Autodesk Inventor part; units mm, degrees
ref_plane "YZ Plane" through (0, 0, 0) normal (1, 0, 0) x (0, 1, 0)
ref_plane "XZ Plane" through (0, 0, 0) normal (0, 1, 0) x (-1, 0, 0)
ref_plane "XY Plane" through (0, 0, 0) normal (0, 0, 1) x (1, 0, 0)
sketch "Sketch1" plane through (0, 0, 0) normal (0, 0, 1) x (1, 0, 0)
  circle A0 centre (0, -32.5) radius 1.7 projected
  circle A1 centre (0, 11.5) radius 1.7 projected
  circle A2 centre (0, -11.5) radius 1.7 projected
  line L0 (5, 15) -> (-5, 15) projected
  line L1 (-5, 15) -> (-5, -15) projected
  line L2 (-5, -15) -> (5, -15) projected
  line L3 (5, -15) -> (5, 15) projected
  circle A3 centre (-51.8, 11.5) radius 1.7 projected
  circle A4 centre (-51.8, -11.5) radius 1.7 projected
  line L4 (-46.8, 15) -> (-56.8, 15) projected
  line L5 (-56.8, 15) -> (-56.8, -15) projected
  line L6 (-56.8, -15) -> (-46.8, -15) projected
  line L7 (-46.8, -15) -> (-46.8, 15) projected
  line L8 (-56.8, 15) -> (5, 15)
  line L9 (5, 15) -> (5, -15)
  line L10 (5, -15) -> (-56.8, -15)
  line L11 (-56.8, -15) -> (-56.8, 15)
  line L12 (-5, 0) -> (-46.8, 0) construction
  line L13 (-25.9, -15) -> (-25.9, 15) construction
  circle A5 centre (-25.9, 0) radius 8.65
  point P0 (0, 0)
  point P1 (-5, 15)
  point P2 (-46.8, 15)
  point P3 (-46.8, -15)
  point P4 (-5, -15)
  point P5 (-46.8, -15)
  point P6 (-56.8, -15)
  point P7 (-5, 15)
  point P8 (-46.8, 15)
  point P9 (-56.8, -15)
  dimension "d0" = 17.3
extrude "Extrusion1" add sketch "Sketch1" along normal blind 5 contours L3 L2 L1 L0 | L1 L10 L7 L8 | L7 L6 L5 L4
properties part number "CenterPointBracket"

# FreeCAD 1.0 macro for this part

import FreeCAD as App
import Part
import Sketcher

V = App.Vector


def add_polygon(sketch, points):
    """Adds a closed chain of lines whose ends are joined by coincident constraints."""
    first, n = sketch.GeometryCount, len(points)
    for a, b in zip(points, points[1:] + points[:1]):
        sketch.addGeometry(Part.LineSegment(App.Vector(*a, 0), App.Vector(*b, 0)), False)
    for i in range(n):
        sketch.addConstraint(Sketcher.Constraint("Coincident", first + i, 2, first + (i + 1) % n, 1))

doc = App.newDocument("Part")
body = doc.addObject("PartDesign::Body", "Body")

sketch1 = body.newObject("Sketcher::SketchObject", "Sketch")
sketch1.AttachmentSupport = (doc.getObject("XY_Plane"), [""])
sketch1.MapMode = "FlatFace"
add_polygon(sketch1, [(5, -15), (5, 15), (-56.8, 15), (-56.8, -15)])
sketch1.addGeometry(Part.Circle(V(0, -11.5, 0), V(0, 0, 1), 1.7), False)
sketch1.addGeometry(Part.Circle(V(0, 11.5, 0), V(0, 0, 1), 1.7), False)
sketch1.addGeometry(Part.Circle(V(-25.9, 0, 0), V(0, 0, 1), 8.7), False)
sketch1.addGeometry(Part.Circle(V(-51.8, 11.5, 0), V(0, 0, 1), 1.7), False)
sketch1.addGeometry(Part.Circle(V(-51.8, -11.5, 0), V(0, 0, 1), 1.7), False)
sketch1.addConstraint([
    Sketcher.Constraint("Vertical", 0),
    Sketcher.Constraint("Horizontal", 1),
    Sketcher.Constraint("Vertical", 2),
    Sketcher.Constraint("Horizontal", 3),
    Sketcher.Constraint("Equal", 4, 5),
    Sketcher.Constraint("Equal", 5, 7),
    Sketcher.Constraint("Equal", 7, 8),
    Sketcher.Constraint("Symmetric", 4, 3, 5, 3, -1, 1),
    Sketcher.Constraint("Symmetric", 7, 3, 8, 3, -1),
    Sketcher.Constraint("PointOnObject", 4, 3, -2),
    Sketcher.Constraint("PointOnObject", 6, 3, -1),
    Sketcher.Constraint("Horizontal", 5, 3, 7, 3),
    Sketcher.Constraint("Diameter", 6, 17.3),
    Sketcher.Constraint("Diameter", 4, 3.4),
    Sketcher.Constraint("DistanceY", 0, 1, 0, 2, 30.0),
    Sketcher.Constraint("DistanceX", 1, 2, 1, 1, 61.8),
    Sketcher.Constraint("DistanceX", -1, 1, 0, 2, 5.0),
    Sketcher.Constraint("DistanceY", -1, 1, 0, 2, 15.0),
    Sketcher.Constraint("DistanceY", 4, 3, 5, 3, 23.0),
    Sketcher.Constraint("DistanceX", 1, 2, 7, 3, 5.0),
    Sketcher.Constraint("DistanceX", 6, 3, -1, 1, 25.9),
])
pad1 = body.newObject("PartDesign::Pad", "Pad")
pad1.Profile = sketch1
pad1.Length = 5

doc.recompute()
